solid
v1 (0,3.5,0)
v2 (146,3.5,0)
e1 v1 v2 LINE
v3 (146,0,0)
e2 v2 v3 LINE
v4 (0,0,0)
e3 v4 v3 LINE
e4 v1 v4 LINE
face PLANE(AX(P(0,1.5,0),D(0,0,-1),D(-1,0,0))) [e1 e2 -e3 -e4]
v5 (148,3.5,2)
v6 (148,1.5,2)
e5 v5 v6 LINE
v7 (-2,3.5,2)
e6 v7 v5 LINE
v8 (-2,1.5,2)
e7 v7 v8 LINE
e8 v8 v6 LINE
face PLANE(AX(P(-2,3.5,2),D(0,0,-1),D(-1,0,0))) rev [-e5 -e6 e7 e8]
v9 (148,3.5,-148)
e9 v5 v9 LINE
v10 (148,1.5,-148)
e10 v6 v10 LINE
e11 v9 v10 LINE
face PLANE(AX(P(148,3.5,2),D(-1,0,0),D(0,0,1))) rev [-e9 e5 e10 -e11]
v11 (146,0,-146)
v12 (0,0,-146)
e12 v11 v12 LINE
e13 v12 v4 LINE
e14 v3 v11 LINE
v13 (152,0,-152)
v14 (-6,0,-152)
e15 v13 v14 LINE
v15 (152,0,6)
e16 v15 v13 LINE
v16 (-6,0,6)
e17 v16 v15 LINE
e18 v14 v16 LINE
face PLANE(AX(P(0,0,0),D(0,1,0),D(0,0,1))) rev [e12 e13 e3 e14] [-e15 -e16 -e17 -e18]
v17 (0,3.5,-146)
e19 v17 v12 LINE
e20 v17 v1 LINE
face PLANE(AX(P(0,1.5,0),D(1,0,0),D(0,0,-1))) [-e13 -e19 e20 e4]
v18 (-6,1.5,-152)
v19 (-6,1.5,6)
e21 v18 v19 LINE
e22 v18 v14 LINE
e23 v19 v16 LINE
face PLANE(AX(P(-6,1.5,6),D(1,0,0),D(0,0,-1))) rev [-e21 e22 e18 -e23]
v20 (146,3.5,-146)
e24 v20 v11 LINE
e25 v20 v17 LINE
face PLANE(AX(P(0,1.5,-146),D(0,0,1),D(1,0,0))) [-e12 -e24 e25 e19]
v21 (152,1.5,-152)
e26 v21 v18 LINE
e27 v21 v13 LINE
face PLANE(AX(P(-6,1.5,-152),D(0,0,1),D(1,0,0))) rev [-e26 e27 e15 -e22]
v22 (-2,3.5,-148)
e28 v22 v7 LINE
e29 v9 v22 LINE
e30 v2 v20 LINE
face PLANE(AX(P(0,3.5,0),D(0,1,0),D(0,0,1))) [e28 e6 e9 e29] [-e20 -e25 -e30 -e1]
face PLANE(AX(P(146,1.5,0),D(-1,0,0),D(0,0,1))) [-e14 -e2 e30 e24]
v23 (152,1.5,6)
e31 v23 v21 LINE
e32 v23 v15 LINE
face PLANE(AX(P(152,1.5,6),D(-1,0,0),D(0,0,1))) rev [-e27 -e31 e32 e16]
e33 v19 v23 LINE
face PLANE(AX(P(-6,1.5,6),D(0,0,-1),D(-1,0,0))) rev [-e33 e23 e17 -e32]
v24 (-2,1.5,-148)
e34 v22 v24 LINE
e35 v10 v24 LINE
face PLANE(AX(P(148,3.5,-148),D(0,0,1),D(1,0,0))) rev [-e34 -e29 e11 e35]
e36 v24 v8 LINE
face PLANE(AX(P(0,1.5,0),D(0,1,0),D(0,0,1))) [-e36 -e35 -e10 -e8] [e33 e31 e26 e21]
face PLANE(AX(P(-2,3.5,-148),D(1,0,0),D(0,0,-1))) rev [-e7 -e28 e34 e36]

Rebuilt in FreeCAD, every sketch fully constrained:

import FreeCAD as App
import Part
import Sketcher

V = App.Vector
Q = App.Units.Quantity

doc = App.newDocument("Part")
body = doc.addObject("PartDesign::Body", "Body")

# Sketch on XZ plane
sketch1 = body.newObject("Sketcher::SketchObject", "Sketch")
sketch1.AttachmentSupport = (doc.getObject("XZ_Plane"), [""])
sketch1.MapMode = "FlatFace"
sketch1.addGeometry(Part.LineSegment(V(-6, -152, 0), V(-6, 6, 0)), False)
sketch1.addGeometry(Part.LineSegment(V(-6, 6, 0), V(152, 6, 0)), False)
sketch1.addGeometry(Part.LineSegment(V(152, 6, 0), V(152, -152, 0)), False)
sketch1.addGeometry(Part.LineSegment(V(152, -152, 0), V(-6, -152, 0)), False)
sketch1.addGeometry(Part.LineSegment(V(146, 0, 0), V(0, 0, 0)), False)
sketch1.addGeometry(Part.LineSegment(V(0, 0, 0), V(0, -146, 0)), False)
sketch1.addGeometry(Part.LineSegment(V(0, -146, 0), V(146, -146, 0)), False)
sketch1.addGeometry(Part.LineSegment(V(146, -146, 0), V(146, 0, 0)), False)
sketch1.addConstraint(Sketcher.Constraint("Coincident", 0, 2, 1, 1))
sketch1.addConstraint(Sketcher.Constraint("Coincident", 1, 2, 2, 1))
sketch1.addConstraint(Sketcher.Constraint("Coincident", 2, 2, 3, 1))
sketch1.addConstraint(Sketcher.Constraint("Coincident", 3, 2, 0, 1))
sketch1.addConstraint(Sketcher.Constraint("Coincident", 4, 2, 5, 1))
sketch1.addConstraint(Sketcher.Constraint("Coincident", 5, 2, 6, 1))
sketch1.addConstraint(Sketcher.Constraint("Coincident", 6, 2, 7, 1))
sketch1.addConstraint(Sketcher.Constraint("Coincident", 7, 2, 4, 1))
sketch1.addConstraint(Sketcher.Constraint("Vertical", 0))
sketch1.addConstraint(Sketcher.Constraint("Horizontal", 1))
sketch1.addConstraint(Sketcher.Constraint("Vertical", 2))
sketch1.addConstraint(Sketcher.Constraint("Horizontal", 3))
sketch1.addConstraint(Sketcher.Constraint("Horizontal", 4))
sketch1.addConstraint(Sketcher.Constraint("Vertical", 5))
sketch1.addConstraint(Sketcher.Constraint("Horizontal", 6))
sketch1.addConstraint(Sketcher.Constraint("Vertical", 7))
sketch1.addConstraint(Sketcher.Constraint("Coincident", 4, 2, -1, 1))
sketch1.addConstraint(Sketcher.Constraint("Equal", 3, 0))
sketch1.addConstraint(Sketcher.Constraint("Equal", 6, 5))
sketch1.addConstraint(Sketcher.Constraint("DistanceX", 1, 1, 1, 2, Q("158 mm")))
sketch1.addConstraint(Sketcher.Constraint("DistanceX", 4, 2, 4, 1, Q("146 mm")))
sketch1.addConstraint(Sketcher.Constraint("DistanceX", 0, 2, -1, 1, Q("6 mm")))
sketch1.addConstraint(Sketcher.Constraint("DistanceY", -1, 1, 0, 2, Q("6 mm")))
pad1 = body.newObject("PartDesign::Pad", "Pad")
pad1.Profile = sketch1
pad1.Length = 1.5
pad1.Reversed = True

# Sketch on XZ plane
sketch2 = body.newObject("Sketcher::SketchObject", "Sketch001")
sketch2.AttachmentSupport = (doc.getObject("XZ_Plane"), [""])
sketch2.MapMode = "FlatFace"
sketch2.AttachmentOffset = App.Placement(V(0, 0, -1.5), App.Rotation())
sketch2.addGeometry(Part.LineSegment(V(-2, -148, 0), V(-2, 2, 0)), False)
sketch2.addGeometry(Part.LineSegment(V(-2, 2, 0), V(148, 2, 0)), False)
sketch2.addGeometry(Part.LineSegment(V(148, 2, 0), V(148, -148, 0)), False)
sketch2.addGeometry(Part.LineSegment(V(148, -148, 0), V(-2, -148, 0)), False)
sketch2.addGeometry(Part.LineSegment(V(146, 0, 0), V(0, 0, 0)), False)
sketch2.addGeometry(Part.LineSegment(V(0, 0, 0), V(0, -146, 0)), False)
sketch2.addGeometry(Part.LineSegment(V(0, -146, 0), V(146, -146, 0)), False)
sketch2.addGeometry(Part.LineSegment(V(146, -146, 0), V(146, 0, 0)), False)
sketch2.addConstraint(Sketcher.Constraint("Coincident", 0, 2, 1, 1))
sketch2.addConstraint(Sketcher.Constraint("Coincident", 1, 2, 2, 1))
sketch2.addConstraint(Sketcher.Constraint("Coincident", 2, 2, 3, 1))
sketch2.addConstraint(Sketcher.Constraint("Coincident", 3, 2, 0, 1))
sketch2.addConstraint(Sketcher.Constraint("Coincident", 4, 2, 5, 1))
sketch2.addConstraint(Sketcher.Constraint("Coincident", 5, 2, 6, 1))
sketch2.addConstraint(Sketcher.Constraint("Coincident", 6, 2, 7, 1))
sketch2.addConstraint(Sketcher.Constraint("Coincident", 7, 2, 4, 1))
sketch2.addConstraint(Sketcher.Constraint("Vertical", 0))
sketch2.addConstraint(Sketcher.Constraint("Horizontal", 1))
sketch2.addConstraint(Sketcher.Constraint("Vertical", 2))
sketch2.addConstraint(Sketcher.Constraint("Horizontal", 3))
sketch2.addConstraint(Sketcher.Constraint("Horizontal", 4))
sketch2.addConstraint(Sketcher.Constraint("Vertical", 5))
sketch2.addConstraint(Sketcher.Constraint("Horizontal", 6))
sketch2.addConstraint(Sketcher.Constraint("Vertical", 7))
sketch2.addConstraint(Sketcher.Constraint("Coincident", 4, 2, -1, 1))
sketch2.addConstraint(Sketcher.Constraint("Equal", 3, 0))
sketch2.addConstraint(Sketcher.Constraint("Equal", 6, 5))
sketch2.addConstraint(Sketcher.Constraint("DistanceX", 1, 1, 1, 2, Q("150 mm")))
sketch2.addConstraint(Sketcher.Constraint("DistanceX", 4, 2, 4, 1, Q("146 mm")))
sketch2.addConstraint(Sketcher.Constraint("DistanceX", 0, 2, -1, 1, Q("2 mm")))
sketch2.addConstraint(Sketcher.Constraint("DistanceY", -1, 1, 0, 2, Q("2 mm")))
pad2 = body.newObject("PartDesign::Pad", "Pad001")
pad2.Profile = sketch2
pad2.Length = 2
pad2.Reversed = True

doc.recompute()
